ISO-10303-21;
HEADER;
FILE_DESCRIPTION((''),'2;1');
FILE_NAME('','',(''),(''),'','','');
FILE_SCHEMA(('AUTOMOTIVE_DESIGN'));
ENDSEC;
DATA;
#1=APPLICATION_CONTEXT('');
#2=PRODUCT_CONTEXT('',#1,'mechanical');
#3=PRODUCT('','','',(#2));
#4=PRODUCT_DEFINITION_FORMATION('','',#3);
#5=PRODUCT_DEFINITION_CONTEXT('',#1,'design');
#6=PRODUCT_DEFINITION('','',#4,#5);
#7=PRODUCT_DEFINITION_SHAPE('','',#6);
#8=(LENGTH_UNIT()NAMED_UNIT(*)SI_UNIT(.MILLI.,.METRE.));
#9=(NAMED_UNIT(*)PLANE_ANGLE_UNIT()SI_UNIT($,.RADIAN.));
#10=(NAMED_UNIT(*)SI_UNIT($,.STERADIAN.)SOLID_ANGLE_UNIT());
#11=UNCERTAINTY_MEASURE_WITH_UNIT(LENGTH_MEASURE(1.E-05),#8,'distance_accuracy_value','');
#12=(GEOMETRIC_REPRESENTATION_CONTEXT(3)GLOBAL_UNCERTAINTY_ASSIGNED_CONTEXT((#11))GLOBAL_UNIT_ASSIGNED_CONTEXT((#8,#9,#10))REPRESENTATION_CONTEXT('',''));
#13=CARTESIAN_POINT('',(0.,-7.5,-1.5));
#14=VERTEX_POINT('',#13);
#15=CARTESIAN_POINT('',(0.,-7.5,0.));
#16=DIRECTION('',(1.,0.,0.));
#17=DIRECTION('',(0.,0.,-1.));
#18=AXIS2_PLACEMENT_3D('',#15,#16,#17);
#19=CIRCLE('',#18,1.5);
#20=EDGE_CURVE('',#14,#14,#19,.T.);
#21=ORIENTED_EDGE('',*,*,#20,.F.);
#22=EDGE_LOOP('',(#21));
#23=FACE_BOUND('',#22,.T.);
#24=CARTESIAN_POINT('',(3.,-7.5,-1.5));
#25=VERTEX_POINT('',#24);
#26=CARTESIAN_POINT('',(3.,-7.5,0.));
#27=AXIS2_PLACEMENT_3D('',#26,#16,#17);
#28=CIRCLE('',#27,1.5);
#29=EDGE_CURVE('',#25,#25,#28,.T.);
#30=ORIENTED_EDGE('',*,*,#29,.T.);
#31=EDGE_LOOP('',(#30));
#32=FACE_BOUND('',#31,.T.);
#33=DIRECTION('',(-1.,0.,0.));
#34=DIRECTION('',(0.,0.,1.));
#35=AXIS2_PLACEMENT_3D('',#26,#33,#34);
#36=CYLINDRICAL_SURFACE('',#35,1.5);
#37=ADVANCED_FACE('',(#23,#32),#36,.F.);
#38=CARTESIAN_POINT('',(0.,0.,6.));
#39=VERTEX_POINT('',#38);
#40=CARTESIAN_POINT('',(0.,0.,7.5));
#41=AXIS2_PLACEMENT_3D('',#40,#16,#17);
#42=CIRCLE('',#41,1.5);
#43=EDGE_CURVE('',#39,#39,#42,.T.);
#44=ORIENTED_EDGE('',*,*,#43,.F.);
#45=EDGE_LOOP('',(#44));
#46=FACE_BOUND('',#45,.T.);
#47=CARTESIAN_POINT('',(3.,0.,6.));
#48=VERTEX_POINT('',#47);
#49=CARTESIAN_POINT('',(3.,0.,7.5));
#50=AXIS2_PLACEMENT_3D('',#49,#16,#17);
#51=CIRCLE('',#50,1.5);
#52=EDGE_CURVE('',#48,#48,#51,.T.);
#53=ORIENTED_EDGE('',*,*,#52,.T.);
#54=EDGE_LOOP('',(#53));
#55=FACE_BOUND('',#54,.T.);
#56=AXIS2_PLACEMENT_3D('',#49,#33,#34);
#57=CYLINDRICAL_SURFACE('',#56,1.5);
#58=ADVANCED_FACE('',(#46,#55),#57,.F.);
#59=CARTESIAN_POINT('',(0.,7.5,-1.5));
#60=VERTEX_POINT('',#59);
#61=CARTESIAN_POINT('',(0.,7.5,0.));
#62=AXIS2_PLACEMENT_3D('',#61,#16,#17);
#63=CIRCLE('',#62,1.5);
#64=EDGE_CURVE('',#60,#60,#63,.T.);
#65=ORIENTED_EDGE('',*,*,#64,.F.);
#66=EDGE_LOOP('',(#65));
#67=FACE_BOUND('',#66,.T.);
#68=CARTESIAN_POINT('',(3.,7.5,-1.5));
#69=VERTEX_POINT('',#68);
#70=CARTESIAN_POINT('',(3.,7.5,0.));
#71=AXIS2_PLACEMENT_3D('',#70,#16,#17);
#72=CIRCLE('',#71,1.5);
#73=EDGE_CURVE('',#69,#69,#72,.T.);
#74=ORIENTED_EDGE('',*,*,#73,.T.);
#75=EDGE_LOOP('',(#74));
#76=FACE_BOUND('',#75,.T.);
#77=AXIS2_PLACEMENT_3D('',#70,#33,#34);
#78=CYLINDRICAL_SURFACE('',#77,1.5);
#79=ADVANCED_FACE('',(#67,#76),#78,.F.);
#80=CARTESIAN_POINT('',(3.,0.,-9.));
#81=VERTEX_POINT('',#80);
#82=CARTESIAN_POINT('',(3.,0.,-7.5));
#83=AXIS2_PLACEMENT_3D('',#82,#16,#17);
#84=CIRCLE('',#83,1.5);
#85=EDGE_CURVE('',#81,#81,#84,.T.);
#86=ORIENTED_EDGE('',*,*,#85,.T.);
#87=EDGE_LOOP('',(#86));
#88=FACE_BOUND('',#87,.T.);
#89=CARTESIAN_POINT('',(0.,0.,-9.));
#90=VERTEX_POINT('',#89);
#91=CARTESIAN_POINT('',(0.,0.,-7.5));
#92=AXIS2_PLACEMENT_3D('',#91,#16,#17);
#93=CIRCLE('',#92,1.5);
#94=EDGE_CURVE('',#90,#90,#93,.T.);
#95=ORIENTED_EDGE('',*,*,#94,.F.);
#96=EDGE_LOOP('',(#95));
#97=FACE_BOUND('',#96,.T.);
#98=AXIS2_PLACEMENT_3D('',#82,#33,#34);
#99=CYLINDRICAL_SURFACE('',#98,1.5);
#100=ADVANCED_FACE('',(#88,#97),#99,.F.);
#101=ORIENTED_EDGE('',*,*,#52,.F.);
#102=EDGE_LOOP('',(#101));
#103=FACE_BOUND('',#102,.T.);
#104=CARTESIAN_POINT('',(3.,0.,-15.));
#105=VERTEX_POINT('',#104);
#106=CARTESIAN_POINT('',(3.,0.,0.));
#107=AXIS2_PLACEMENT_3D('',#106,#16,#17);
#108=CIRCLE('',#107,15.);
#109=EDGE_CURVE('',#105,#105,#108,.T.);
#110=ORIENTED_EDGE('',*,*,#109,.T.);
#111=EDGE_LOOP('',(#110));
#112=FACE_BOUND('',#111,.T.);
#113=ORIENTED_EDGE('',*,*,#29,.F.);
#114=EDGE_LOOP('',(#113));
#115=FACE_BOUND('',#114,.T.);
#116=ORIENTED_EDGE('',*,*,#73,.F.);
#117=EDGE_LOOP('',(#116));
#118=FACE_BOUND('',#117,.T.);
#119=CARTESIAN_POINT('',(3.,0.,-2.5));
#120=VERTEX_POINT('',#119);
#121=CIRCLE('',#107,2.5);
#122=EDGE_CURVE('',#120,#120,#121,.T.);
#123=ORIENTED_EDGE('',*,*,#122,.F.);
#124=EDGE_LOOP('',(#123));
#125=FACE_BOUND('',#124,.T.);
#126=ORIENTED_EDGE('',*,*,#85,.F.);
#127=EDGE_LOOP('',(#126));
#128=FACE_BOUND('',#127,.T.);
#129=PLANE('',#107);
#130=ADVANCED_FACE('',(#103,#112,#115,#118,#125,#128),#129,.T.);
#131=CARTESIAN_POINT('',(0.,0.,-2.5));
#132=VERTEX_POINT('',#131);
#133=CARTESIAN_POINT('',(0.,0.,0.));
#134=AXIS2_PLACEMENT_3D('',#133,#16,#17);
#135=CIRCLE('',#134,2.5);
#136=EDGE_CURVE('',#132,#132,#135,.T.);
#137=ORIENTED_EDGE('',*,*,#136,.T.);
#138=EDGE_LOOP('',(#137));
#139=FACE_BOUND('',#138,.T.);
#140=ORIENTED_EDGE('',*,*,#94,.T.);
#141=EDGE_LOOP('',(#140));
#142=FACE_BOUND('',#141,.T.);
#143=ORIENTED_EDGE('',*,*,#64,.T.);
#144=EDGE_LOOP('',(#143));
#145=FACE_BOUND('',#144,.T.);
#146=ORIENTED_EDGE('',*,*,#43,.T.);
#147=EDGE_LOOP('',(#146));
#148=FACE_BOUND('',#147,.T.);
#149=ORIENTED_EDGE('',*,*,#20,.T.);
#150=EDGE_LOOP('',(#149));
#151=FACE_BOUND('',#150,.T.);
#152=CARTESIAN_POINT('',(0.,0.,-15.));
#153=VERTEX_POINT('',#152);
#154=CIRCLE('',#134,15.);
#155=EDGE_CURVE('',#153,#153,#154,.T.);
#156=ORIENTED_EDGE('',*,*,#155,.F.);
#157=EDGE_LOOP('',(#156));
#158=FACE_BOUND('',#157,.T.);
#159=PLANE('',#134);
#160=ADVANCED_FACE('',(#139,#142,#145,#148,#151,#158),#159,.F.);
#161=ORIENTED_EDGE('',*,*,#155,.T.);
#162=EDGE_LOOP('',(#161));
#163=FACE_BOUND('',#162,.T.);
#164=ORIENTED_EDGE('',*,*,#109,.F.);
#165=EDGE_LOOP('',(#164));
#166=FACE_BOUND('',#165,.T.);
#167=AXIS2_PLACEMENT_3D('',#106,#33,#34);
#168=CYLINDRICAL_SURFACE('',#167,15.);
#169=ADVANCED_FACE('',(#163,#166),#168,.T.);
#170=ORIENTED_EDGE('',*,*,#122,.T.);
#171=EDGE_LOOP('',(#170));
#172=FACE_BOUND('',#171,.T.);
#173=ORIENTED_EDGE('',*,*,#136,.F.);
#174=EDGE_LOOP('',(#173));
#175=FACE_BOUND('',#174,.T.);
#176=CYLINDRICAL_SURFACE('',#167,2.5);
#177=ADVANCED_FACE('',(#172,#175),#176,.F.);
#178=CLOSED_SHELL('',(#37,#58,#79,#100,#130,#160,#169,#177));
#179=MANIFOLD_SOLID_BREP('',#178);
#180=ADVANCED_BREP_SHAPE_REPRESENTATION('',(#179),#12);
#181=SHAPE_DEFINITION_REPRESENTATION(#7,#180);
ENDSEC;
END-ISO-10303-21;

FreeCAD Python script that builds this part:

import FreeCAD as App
import Part
import Sketcher
Q = App.Units.Quantity

doc = App.newDocument("Part")
body = doc.addObject("PartDesign::Body", "Body")

# Sketch on YZ plane
sketch1 = doc.addObject("Sketcher::SketchObject", "Sketch")
body.addObject(sketch1)
sketch1.AttachmentSupport = (doc.YZ_Plane, [""])
sketch1.MapMode = "FlatFace"
sketch1.addGeometry([
    Part.Circle(App.Vector(0, 0, 0), App.Vector(0, 0, 1), 15),  # 0
    Part.Circle(App.Vector(-7.5, 0, 0), App.Vector(0, 0, 1), 1.5),  # 1
    Part.Circle(App.Vector(0, 7.5, 0), App.Vector(0, 0, 1), 1.5),  # 2
    Part.Circle(App.Vector(0, 0, 0), App.Vector(0, 0, 1), 2.5),  # 3
    Part.Circle(App.Vector(0, -7.5, 0), App.Vector(0, 0, 1), 1.5),  # 4
    Part.Circle(App.Vector(7.5, 0, 0), App.Vector(0, 0, 1), 1.5),  # 5
], False)
sketch1.addConstraint([
    Sketcher.Constraint("Coincident", 0, 3, -1, 1),
    Sketcher.Constraint("Coincident", 3, 3, -1, 1),
    Sketcher.Constraint("Equal", 1, 2),
    Sketcher.Constraint("Equal", 2, 4),
    Sketcher.Constraint("Equal", 4, 5),
    Sketcher.Constraint("Symmetric", 2, 3, 4, 3, -1, 1),
    Sketcher.Constraint("Symmetric", 1, 3, 5, 3, -1, 1),
    Sketcher.Constraint("PointOnObject", 1, 3, -1),
    Sketcher.Constraint("PointOnObject", 2, 3, -2),
    Sketcher.Constraint("Diameter", 0, Q("30 mm")),
    Sketcher.Constraint("Diameter", 1, Q("3 mm")),
    Sketcher.Constraint("Diameter", 3, Q("5 mm")),
    Sketcher.Constraint("DistanceY", 4, 3, 2, 3, Q("15 mm")),
    Sketcher.Constraint("DistanceX", 1, 3, 5, 3, Q("15 mm")),
])
pad1 = doc.addObject("PartDesign::Pad", "Pad")
body.addObject(pad1)
pad1.Profile = sketch1
pad1.Length = 3

doc.recompute()
